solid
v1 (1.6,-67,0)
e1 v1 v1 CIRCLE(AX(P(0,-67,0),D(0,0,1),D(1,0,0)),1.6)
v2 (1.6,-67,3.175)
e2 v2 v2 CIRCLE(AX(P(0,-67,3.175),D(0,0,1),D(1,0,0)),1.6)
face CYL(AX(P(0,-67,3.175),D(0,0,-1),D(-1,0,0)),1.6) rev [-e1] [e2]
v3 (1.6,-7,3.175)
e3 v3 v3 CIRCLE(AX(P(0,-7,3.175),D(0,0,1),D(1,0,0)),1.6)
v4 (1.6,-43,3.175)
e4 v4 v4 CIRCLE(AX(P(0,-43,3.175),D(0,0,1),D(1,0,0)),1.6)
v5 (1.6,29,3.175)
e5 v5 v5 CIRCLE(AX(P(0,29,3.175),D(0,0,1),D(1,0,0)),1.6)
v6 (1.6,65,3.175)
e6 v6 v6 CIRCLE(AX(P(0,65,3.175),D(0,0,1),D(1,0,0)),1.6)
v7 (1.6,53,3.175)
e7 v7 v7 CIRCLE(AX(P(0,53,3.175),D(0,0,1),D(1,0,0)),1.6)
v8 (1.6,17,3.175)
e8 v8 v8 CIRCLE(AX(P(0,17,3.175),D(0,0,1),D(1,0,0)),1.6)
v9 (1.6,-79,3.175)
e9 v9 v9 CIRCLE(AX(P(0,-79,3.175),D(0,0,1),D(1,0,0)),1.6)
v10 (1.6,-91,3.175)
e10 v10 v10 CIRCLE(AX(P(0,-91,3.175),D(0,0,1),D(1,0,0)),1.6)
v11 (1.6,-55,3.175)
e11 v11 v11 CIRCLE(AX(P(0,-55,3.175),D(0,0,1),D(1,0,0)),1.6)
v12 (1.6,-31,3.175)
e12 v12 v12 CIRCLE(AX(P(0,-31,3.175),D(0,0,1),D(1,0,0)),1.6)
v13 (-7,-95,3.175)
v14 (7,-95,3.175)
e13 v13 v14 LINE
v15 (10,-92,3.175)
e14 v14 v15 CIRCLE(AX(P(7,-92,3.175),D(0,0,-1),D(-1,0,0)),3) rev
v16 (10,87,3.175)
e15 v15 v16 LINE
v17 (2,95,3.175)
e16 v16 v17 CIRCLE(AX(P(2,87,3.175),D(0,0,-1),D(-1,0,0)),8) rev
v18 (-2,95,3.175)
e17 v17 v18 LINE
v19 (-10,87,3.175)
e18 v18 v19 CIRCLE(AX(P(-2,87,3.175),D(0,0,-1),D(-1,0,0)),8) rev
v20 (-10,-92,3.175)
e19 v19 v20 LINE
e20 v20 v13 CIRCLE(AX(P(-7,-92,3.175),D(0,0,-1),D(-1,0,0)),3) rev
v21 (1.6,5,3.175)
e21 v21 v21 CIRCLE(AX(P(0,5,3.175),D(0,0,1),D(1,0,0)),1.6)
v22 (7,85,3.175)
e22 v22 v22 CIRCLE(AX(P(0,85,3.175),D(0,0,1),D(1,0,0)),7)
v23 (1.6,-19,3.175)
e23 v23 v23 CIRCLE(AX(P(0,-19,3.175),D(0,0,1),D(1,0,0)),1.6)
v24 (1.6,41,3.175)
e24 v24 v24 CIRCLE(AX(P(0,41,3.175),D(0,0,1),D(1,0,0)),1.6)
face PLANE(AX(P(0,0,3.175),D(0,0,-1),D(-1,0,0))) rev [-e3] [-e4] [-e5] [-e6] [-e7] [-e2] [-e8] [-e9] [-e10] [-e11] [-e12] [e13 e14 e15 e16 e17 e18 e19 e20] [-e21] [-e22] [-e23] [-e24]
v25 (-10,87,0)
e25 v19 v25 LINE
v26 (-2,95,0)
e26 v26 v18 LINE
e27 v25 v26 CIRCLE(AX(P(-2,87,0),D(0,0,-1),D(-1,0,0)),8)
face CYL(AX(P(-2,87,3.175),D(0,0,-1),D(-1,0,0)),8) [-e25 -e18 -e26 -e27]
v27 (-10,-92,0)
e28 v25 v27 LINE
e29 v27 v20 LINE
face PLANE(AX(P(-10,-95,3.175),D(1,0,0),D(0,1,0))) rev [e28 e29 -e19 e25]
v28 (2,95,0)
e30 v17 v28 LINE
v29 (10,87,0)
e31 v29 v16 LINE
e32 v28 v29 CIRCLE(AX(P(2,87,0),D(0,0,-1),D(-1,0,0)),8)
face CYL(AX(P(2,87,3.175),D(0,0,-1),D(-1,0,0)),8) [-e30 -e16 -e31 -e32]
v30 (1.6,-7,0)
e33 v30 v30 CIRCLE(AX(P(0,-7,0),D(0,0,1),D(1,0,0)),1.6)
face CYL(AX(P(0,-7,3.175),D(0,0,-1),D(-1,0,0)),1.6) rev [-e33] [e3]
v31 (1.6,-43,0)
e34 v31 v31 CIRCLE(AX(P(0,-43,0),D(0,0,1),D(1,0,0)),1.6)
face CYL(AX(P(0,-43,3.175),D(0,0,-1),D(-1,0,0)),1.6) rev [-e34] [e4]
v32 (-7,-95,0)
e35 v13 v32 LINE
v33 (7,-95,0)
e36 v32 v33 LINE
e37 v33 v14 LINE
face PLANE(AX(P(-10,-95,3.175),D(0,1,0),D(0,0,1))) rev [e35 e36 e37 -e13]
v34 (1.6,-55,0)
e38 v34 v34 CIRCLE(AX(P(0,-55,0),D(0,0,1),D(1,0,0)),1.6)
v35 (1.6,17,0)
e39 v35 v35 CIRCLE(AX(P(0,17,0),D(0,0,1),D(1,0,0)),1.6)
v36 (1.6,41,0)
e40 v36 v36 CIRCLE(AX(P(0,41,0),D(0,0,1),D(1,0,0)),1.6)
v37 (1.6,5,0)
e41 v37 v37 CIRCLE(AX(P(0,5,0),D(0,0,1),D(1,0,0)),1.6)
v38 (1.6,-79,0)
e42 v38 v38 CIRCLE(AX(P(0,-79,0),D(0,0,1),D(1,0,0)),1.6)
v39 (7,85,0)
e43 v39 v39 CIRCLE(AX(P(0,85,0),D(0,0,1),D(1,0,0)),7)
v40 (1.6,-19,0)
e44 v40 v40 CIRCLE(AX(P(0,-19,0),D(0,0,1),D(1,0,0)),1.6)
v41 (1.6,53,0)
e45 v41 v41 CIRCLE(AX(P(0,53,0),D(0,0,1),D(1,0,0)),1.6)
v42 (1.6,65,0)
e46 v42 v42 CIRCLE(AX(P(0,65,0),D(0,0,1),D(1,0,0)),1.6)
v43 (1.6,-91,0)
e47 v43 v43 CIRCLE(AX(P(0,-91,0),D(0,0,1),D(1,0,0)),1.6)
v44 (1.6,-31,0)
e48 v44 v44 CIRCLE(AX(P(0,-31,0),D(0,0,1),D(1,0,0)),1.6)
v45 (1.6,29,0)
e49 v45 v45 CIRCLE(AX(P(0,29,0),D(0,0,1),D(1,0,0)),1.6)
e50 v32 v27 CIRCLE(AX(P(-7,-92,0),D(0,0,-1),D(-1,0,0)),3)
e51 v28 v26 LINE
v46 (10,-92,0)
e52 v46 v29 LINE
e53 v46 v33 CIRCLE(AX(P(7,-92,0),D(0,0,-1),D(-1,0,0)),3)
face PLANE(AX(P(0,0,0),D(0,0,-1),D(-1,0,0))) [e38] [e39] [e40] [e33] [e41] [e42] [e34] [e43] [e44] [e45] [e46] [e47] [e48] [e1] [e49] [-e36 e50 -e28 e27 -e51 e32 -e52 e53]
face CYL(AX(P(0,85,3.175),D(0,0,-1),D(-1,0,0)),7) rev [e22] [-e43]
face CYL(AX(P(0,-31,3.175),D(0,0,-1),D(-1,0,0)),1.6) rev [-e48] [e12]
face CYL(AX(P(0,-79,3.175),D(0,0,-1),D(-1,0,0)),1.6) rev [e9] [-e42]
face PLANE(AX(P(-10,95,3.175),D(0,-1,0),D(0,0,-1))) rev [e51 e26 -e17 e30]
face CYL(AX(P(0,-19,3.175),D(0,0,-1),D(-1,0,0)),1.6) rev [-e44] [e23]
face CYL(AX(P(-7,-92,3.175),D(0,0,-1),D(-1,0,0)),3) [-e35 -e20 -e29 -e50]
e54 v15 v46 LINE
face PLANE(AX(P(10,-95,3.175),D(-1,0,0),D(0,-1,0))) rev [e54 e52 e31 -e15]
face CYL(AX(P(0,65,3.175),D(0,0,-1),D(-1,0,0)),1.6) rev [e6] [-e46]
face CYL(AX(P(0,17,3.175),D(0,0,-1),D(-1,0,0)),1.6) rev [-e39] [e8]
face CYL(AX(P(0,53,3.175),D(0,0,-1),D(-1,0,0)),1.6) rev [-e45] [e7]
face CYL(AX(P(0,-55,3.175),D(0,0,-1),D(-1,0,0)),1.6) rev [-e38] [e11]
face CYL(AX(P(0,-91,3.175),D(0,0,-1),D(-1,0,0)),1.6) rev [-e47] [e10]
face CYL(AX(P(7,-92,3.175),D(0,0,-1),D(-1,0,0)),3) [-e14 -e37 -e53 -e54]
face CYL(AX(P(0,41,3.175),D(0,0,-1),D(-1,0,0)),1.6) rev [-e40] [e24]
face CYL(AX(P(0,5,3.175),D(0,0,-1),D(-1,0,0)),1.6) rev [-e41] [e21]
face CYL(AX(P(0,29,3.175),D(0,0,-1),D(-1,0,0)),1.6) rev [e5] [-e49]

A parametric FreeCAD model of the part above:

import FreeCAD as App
import Part
import Sketcher

V = App.Vector


def edges_at(feature, points):
    """Names of the edges that pass closest to the given points."""
    edges = feature.Shape.Edges
    near = lambda p: min(range(len(edges)), key=lambda i: edges[i].distToShape(Part.Vertex(*p))[0])
    return sorted({f"Edge{near(p) + 1}" for p in points})

doc = App.newDocument("Part")
body = doc.addObject("PartDesign::Body", "Body")

sketch1 = doc.addObject("Sketcher::SketchObject", "Sketch")
body.addObject(sketch1)
sketch1.AttachmentSupport = (doc.XY_Plane, [""])
sketch1.MapMode = "FlatFace"
sketch1.addGeometry([
    Part.LineSegment(V(-10, 95, 0), V(-10, -95, 0)),
    Part.LineSegment(V(-10, -95, 0), V(10, -95, 0)),
    Part.LineSegment(V(10, -95, 0), V(10, 95, 0)),
    Part.LineSegment(V(10, 95, 0), V(-10, 95, 0)),
    Part.Circle(V(0, -91, 0), V(0, 0, 1), 1.6),
    Part.Circle(V(0, -79, 0), V(0, 0, 1), 1.6),
    Part.Circle(V(0, -67, 0), V(0, 0, 1), 1.6),
    Part.Circle(V(0, -55, 0), V(0, 0, 1), 1.6),
    Part.Circle(V(0, -43, 0), V(0, 0, 1), 1.6),
    Part.Circle(V(0, -31, 0), V(0, 0, 1), 1.6),
    Part.Circle(V(0, -19, 0), V(0, 0, 1), 1.6),
    Part.Circle(V(0, -7, 0), V(0, 0, 1), 1.6),
    Part.Circle(V(0, 5, 0), V(0, 0, 1), 1.6),
    Part.Circle(V(0, 17, 0), V(0, 0, 1), 1.6),
    Part.Circle(V(0, 29, 0), V(0, 0, 1), 1.6),
    Part.Circle(V(0, 41, 0), V(0, 0, 1), 1.6),
    Part.Circle(V(0, 53, 0), V(0, 0, 1), 1.6),
    Part.Circle(V(0, 65, 0), V(0, 0, 1), 1.6),
    Part.Circle(V(0, 85, 0), V(0, 0, 1), 7),
], False)
sketch1.addConstraint([
    Sketcher.Constraint("Coincident", 0, 2, 1, 1),
    Sketcher.Constraint("Coincident", 1, 2, 2, 1),
    Sketcher.Constraint("Coincident", 2, 2, 3, 1),
    Sketcher.Constraint("Coincident", 3, 2, 0, 1),
    Sketcher.Constraint("Vertical", 0),
    Sketcher.Constraint("Horizontal", 1),
    Sketcher.Constraint("Vertical", 2),
    Sketcher.Constraint("Horizontal", 3),
    Sketcher.Constraint("Equal", 4, 5),
    Sketcher.Constraint("Equal", 5, 6),
    Sketcher.Constraint("Equal", 6, 7),
    Sketcher.Constraint("Equal", 7, 8),
    Sketcher.Constraint("Equal", 8, 9),
    Sketcher.Constraint("Equal", 9, 10),
    Sketcher.Constraint("Equal", 10, 11),
    Sketcher.Constraint("Equal", 11, 12),
    Sketcher.Constraint("Equal", 12, 13),
    Sketcher.Constraint("Equal", 13, 14),
    Sketcher.Constraint("Equal", 14, 15),
    Sketcher.Constraint("Equal", 15, 16),
    Sketcher.Constraint("Equal", 16, 17),
    Sketcher.Constraint("Symmetric", 0, 2, 2, 2, -1, 1),
    Sketcher.Constraint("PointOnObject", 4, 3, -2),
    Sketcher.Constraint("PointOnObject", 5, 3, -2),
    Sketcher.Constraint("PointOnObject", 6, 3, -2),
    Sketcher.Constraint("PointOnObject", 7, 3, -2),
    Sketcher.Constraint("PointOnObject", 8, 3, -2),
    Sketcher.Constraint("PointOnObject", 9, 3, -2),
    Sketcher.Constraint("PointOnObject", 10, 3, -2),
    Sketcher.Constraint("PointOnObject", 11, 3, -2),
    Sketcher.Constraint("PointOnObject", 12, 3, -2),
    Sketcher.Constraint("PointOnObject", 13, 3, -2),
    Sketcher.Constraint("PointOnObject", 14, 3, -2),
    Sketcher.Constraint("PointOnObject", 15, 3, -2),
    Sketcher.Constraint("PointOnObject", 16, 3, -2),
    Sketcher.Constraint("PointOnObject", 17, 3, -2),
    Sketcher.Constraint("PointOnObject", 18, 3, -2),
    Sketcher.Constraint("Diameter", 18, 14.0),
    Sketcher.Constraint("Diameter", 4, 3.2),
    Sketcher.Constraint("DistanceX", 1, 1, 1, 2, 20.0),
    Sketcher.Constraint("DistanceY", 0, 2, 0, 1, 190.0),
    Sketcher.Constraint("DistanceY", 4, 3, -1, 1, 91.0),
    Sketcher.Constraint("DistanceY", 5, 3, -1, 1, 79.0),
    Sketcher.Constraint("DistanceY", 6, 3, -1, 1, 67.0),
    Sketcher.Constraint("DistanceY", 7, 3, -1, 1, 55.0),
    Sketcher.Constraint("DistanceY", 8, 3, -1, 1, 43.0),
    Sketcher.Constraint("DistanceY", 9, 3, -1, 1, 31.0),
    Sketcher.Constraint("DistanceY", 10, 3, -1, 1, 19.0),
    Sketcher.Constraint("DistanceY", 11, 3, -1, 1, 7.0),
    Sketcher.Constraint("DistanceY", -1, 1, 12, 3, 5.0),
    Sketcher.Constraint("DistanceY", -1, 1, 13, 3, 17.0),
    Sketcher.Constraint("DistanceY", -1, 1, 14, 3, 29.0),
    Sketcher.Constraint("DistanceY", -1, 1, 15, 3, 41.0),
    Sketcher.Constraint("DistanceY", -1, 1, 16, 3, 53.0),
    Sketcher.Constraint("DistanceY", -1, 1, 17, 3, 65.0),
    Sketcher.Constraint("DistanceY", -1, 1, 18, 3, 85.0),
])
pad1 = doc.addObject("PartDesign::Pad", "Pad")
body.addObject(pad1)
pad1.Profile = sketch1
pad1.Length = 3.175
doc.recompute()

fillet = doc.addObject("PartDesign::Fillet", "Fillet")
body.addObject(fillet)
fillet.Base = (pad1, edges_at(pad1, [(10, -95, 1.587), (-10, -95, 1.587)]))
fillet.Radius = 3
doc.recompute()

fillet2 = doc.addObject("PartDesign::Fillet", "Fillet001")
body.addObject(fillet2)
fillet2.Base = (fillet, edges_at(fillet, [(-10, 95, 1.587), (10, 95, 1.587)]))
fillet2.Radius = 8

doc.recompute()
